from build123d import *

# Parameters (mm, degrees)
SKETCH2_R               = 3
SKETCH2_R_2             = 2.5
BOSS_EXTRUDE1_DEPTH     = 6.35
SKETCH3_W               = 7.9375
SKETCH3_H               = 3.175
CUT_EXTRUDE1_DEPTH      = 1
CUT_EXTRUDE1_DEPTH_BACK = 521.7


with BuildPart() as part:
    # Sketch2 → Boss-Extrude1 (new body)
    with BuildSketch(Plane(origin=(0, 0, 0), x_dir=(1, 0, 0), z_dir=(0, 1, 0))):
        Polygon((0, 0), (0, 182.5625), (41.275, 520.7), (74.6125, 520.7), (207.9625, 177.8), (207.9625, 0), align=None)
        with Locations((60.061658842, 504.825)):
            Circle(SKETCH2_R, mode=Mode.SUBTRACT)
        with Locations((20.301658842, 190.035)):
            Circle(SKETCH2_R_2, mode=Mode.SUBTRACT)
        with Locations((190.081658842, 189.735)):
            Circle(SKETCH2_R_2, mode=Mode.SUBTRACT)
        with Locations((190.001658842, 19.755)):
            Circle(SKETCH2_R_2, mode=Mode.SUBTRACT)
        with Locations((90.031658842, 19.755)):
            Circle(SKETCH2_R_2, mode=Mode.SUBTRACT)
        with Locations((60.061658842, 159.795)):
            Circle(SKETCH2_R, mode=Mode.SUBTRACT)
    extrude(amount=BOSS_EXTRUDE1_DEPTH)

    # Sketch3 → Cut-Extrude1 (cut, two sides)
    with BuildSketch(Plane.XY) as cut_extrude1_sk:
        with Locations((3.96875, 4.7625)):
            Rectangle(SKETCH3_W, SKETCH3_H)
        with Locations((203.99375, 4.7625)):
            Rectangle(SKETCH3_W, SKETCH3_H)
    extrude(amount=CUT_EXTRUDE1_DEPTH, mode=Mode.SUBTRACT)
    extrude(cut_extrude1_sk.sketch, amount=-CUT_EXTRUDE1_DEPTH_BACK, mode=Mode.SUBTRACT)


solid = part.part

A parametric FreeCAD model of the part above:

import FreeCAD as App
import Part
import Sketcher

V = App.Vector
Q = App.Units.Quantity

doc = App.newDocument("Part")
params = doc.addObject("Spreadsheet::Sheet", "Params")
for row, (alias, value) in enumerate([
    ("sketch1_height", "7 in"),
    ("sketch1_width", "8.1875 in"),
    ("sketch1_width2", "1.3125 in"),
    ("sketch1_height2", "7.1875 in"),
    ("pad1_length", "0.25 in"),
    ("sketch2_width", "0.3125 in"),
    ("sketch2_height", "0.125 in"),
], start=1):
    params.set(f"A{row}", alias)
    params.set(f"B{row}", "=" + value)
    params.setAlias(f"B{row}", alias)

body = doc.addObject("PartDesign::Body", "Body")

sketch1 = body.newObject("Sketcher::SketchObject", "Sketch")
sketch1.AttachmentSupport = (doc.getObject("XZ_Plane"), [""])
sketch1.MapMode = "FlatFace"
sketch1.addGeometry([
    Part.LineSegment(V(0, -182.6, 0), V(0, 0, 0)),
    Part.LineSegment(V(0, 0, 0), V(208, 0, 0)),
    Part.LineSegment(V(208, 0, 0), V(208, -177.8, 0)),
    Part.LineSegment(V(208, -177.8, 0), V(74.6, -520.7, 0)),
    Part.LineSegment(V(74.6, -520.7, 0), V(41.3, -520.7, 0)),
    Part.LineSegment(V(41.3, -520.7, 0), V(0, -182.6, 0)),
    Part.Circle(V(190, -19.8, 0), V(0, 0, 1), 2.5),
    Part.Circle(V(190.1, -189.7, 0), V(0, 0, 1), 2.5),
    Part.Circle(V(90, -19.8, 0), V(0, 0, 1), 2.5),
    Part.Circle(V(60.1, -159.8, 0), V(0, 0, 1), 3),
    Part.Circle(V(20.3, -190, 0), V(0, 0, 1), 2.5),
    Part.Circle(V(60.1, -504.8, 0), V(0, 0, 1), 3),
], False)
sketch1.addConstraint([
    Sketcher.Constraint("Coincident", 0, 2, 1, 1),
    Sketcher.Constraint("Coincident", 1, 2, 2, 1),
    Sketcher.Constraint("Coincident", 2, 2, 3, 1),
    Sketcher.Constraint("Coincident", 3, 2, 4, 1),
    Sketcher.Constraint("Coincident", 4, 2, 5, 1),
    Sketcher.Constraint("Coincident", 5, 2, 0, 1),
    Sketcher.Constraint("Vertical", 0),
    Sketcher.Constraint("Horizontal", 1),
    Sketcher.Constraint("Vertical", 2),
    Sketcher.Constraint("Horizontal", 4),
    Sketcher.Constraint("Coincident", 0, 2, -1, 1),
    Sketcher.Constraint("Equal", 6, 7),
    Sketcher.Constraint("Equal", 7, 8),
    Sketcher.Constraint("Equal", 8, 10),
    Sketcher.Constraint("Equal", 9, 11),
    Sketcher.Constraint("Horizontal", 6, 3, 8, 3),
    Sketcher.Constraint("Vertical", 9, 3, 11, 3),
    Sketcher.Constraint("DistanceY", 2, 2, 2, 1, Q("7 in")),
    Sketcher.Constraint("DistanceY", 3, 2, -1, 1, Q("20.5 in")),
    Sketcher.Constraint("Diameter", 6, 5.0),
    Sketcher.Constraint("Diameter", 9, 6.0),
    Sketcher.Constraint("DistanceX", 1, 1, 1, 2, Q("8.1875 in")),
    Sketcher.Constraint("DistanceX", 4, 2, 4, 1, Q("1.3125 in")),
    Sketcher.Constraint("DistanceY", 0, 1, 0, 2, Q("7.1875 in")),
    Sketcher.Constraint("DistanceX", 3, 2, 2, 2, Q("5.25 in")),
    Sketcher.Constraint("DistanceY", 11, 3, -1, 1, Q("19.875 in")),
    Sketcher.Constraint("DistanceY", 6, 3, -1, 1, 19.755),
    Sketcher.Constraint("DistanceY", 7, 3, -1, 1, 189.735),
    Sketcher.Constraint("DistanceY", 9, 3, -1, 1, 159.795),
    Sketcher.Constraint("DistanceY", 10, 3, -1, 1, 190.035),
    Sketcher.Constraint("DistanceX", 6, 3, 7, 3, 0.08),
    Sketcher.Constraint("DistanceX", 8, 3, 6, 3, 99.97),
    Sketcher.Constraint("DistanceX", 9, 3, 7, 3, 130.02),
    Sketcher.Constraint("DistanceX", 10, 3, 9, 3, 39.76),
    Sketcher.Constraint("DistanceX", -1, 1, 6, 3, 190.001659),
])
sketch1.setExpression("Constraints[17]", "Params.sketch1_height")
sketch1.setExpression("Constraints[21]", "Params.sketch1_width")
sketch1.setExpression("Constraints[22]", "Params.sketch1_width2")
sketch1.setExpression("Constraints[23]", "Params.sketch1_height2")
pad1 = body.newObject("PartDesign::Pad", "Pad")
pad1.Profile = sketch1
pad1.setExpression("Length", "Params.pad1_length")
pad1.Reversed = True

sketch2 = body.newObject("Sketcher::SketchObject", "Sketch001")
sketch2.AttachmentSupport = (doc.getObject("XY_Plane"), [""])
sketch2.MapMode = "FlatFace"
sketch2.addGeometry([
    Part.LineSegment(V(0, 6.3, 0), V(0, 3.2, 0)),
    Part.LineSegment(V(0, 3.2, 0), V(7.9, 3.2, 0)),
    Part.LineSegment(V(7.9, 3.2, 0), V(7.9, 6.3, 0)),
    Part.LineSegment(V(7.9, 6.3, 0), V(0, 6.3, 0)),
    Part.LineSegment(V(200, 6.3, 0), V(200, 3.2, 0)),
    Part.LineSegment(V(200, 3.2, 0), V(208, 3.2, 0)),
    Part.LineSegment(V(208, 3.2, 0), V(208, 6.3, 0)),
    Part.LineSegment(V(208, 6.3, 0), V(200, 6.3, 0)),
], False)
sketch2.addConstraint([
    Sketcher.Constraint("Coincident", 0, 2, 1, 1),
    Sketcher.Constraint("Coincident", 1, 2, 2, 1),
    Sketcher.Constraint("Coincident", 2, 2, 3, 1),
    Sketcher.Constraint("Coincident", 3, 2, 0, 1),
    Sketcher.Constraint("Coincident", 4, 2, 5, 1),
    Sketcher.Constraint("Coincident", 5, 2, 6, 1),
    Sketcher.Constraint("Coincident", 6, 2, 7, 1),
    Sketcher.Constraint("Coincident", 7, 2, 4, 1),
    Sketcher.Constraint("Vertical", 0),
    Sketcher.Constraint("Horizontal", 1),
    Sketcher.Constraint("Vertical", 2),
    Sketcher.Constraint("Horizontal", 3),
    Sketcher.Constraint("Vertical", 4),
    Sketcher.Constraint("Horizontal", 5),
    Sketcher.Constraint("Vertical", 6),
    Sketcher.Constraint("Horizontal", 7),
    Sketcher.Constraint("PointOnObject", 0, 2, -2),
    Sketcher.Constraint("Horizontal", 1, 2, 4, 2),
    Sketcher.Constraint("Horizontal", 3, 2, 6, 2),
    Sketcher.Constraint("Equal", 3, 5),
    Sketcher.Constraint("DistanceX", 1, 1, 1, 2, Q("0.3125 in")),
    Sketcher.Constraint("DistanceY", 0, 2, 0, 1, Q("0.125 in")),
    Sketcher.Constraint("DistanceY", -1, 1, 2, 2, Q("0.25 in")),
    Sketcher.Constraint("DistanceX", -1, 1, 4, 2, Q("7.875 in")),
])
sketch2.setExpression("Constraints[20]", "Params.sketch2_width")
sketch2.setExpression("Constraints[21]", "Params.sketch2_height")
pocket1 = body.newObject("PartDesign::Pocket", "Pocket")
pocket1.Profile = sketch2
pocket1.Type = "ThroughAll"
pocket1.Midplane = True

doc.recompute()
